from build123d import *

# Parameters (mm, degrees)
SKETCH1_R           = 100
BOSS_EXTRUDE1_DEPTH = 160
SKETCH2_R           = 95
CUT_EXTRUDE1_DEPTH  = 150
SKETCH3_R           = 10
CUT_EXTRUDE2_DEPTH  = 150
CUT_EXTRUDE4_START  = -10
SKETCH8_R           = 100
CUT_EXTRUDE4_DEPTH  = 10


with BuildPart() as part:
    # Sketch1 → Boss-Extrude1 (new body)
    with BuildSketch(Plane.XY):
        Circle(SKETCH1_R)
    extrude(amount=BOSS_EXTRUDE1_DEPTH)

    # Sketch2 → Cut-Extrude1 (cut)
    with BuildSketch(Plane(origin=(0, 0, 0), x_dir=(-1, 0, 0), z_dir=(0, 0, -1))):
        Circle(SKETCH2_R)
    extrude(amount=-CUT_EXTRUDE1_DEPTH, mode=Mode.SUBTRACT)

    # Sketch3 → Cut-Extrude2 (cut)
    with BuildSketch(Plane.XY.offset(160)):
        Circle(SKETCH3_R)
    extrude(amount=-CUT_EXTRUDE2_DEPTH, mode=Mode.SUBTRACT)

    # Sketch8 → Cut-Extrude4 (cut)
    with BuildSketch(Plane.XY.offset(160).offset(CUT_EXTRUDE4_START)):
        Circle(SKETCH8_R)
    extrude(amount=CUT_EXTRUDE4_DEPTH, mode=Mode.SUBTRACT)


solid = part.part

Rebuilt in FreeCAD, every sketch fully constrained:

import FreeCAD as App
import Part
import Sketcher

V = App.Vector

doc = App.newDocument("Part")
body = doc.addObject("PartDesign::Body", "Body")

# Sketch on XY plane
sketch1 = body.newObject("Sketcher::SketchObject", "Sketch")
sketch1.AttachmentSupport = (doc.getObject("XY_Plane"), [""])
sketch1.MapMode = "FlatFace"
sketch1.addGeometry(Part.Circle(V(0, 0, 0), V(0, 0, 1), 100), False)
sketch1.addConstraint([
    Sketcher.Constraint("Coincident", 0, 3, -1, 1),
    Sketcher.Constraint("Diameter", 0, 200.0),
])
pad1 = body.newObject("PartDesign::Pad", "Pad")
pad1.Profile = sketch1
pad1.Length = 160

# Sketch on XY plane
sketch2 = body.newObject("Sketcher::SketchObject", "Sketch001")
sketch2.AttachmentSupport = (doc.getObject("XY_Plane"), [""])
sketch2.MapMode = "FlatFace"
sketch2.addGeometry(Part.Circle(V(0, 0, 0), V(0, 0, 1), 95), False)
sketch2.addConstraint([
    Sketcher.Constraint("Coincident", 0, 3, -1, 1),
    Sketcher.Constraint("Diameter", 0, 190.0),
])
pocket1 = body.newObject("PartDesign::Pocket", "Pocket")
pocket1.Profile = sketch2
pocket1.Length = 150
pocket1.Reversed = True

# Sketch on XY plane
sketch3 = body.newObject("Sketcher::SketchObject", "Sketch002")
sketch3.AttachmentSupport = (doc.getObject("XY_Plane"), [""])
sketch3.MapMode = "FlatFace"
sketch3.AttachmentOffset = App.Placement(V(0, 0, 160), App.Rotation())
sketch3.addGeometry(Part.Circle(V(0, 0, 0), V(0, 0, 1), 10), False)
sketch3.addConstraint([
    Sketcher.Constraint("Coincident", 0, 3, -1, 1),
    Sketcher.Constraint("Diameter", 0, 20.0),
])
pocket2 = body.newObject("PartDesign::Pocket", "Pocket001")
pocket2.Profile = sketch3
pocket2.Length = 150

# Sketch on XY plane
sketch4 = body.newObject("Sketcher::SketchObject", "Sketch003")
sketch4.AttachmentSupport = (doc.getObject("XY_Plane"), [""])
sketch4.MapMode = "FlatFace"
sketch4.AttachmentOffset = App.Placement(V(0, 0, 150), App.Rotation())
sketch4.addGeometry(Part.Circle(V(0, 0, 0), V(0, 0, 1), 100), False)
sketch4.addConstraint([
    Sketcher.Constraint("Coincident", 0, 3, -1, 1),
    Sketcher.Constraint("Diameter", 0, 200.0),
])
pocket3 = body.newObject("PartDesign::Pocket", "Pocket002")
pocket3.Profile = sketch4
pocket3.Length = 10
pocket3.Reversed = True

doc.recompute()
